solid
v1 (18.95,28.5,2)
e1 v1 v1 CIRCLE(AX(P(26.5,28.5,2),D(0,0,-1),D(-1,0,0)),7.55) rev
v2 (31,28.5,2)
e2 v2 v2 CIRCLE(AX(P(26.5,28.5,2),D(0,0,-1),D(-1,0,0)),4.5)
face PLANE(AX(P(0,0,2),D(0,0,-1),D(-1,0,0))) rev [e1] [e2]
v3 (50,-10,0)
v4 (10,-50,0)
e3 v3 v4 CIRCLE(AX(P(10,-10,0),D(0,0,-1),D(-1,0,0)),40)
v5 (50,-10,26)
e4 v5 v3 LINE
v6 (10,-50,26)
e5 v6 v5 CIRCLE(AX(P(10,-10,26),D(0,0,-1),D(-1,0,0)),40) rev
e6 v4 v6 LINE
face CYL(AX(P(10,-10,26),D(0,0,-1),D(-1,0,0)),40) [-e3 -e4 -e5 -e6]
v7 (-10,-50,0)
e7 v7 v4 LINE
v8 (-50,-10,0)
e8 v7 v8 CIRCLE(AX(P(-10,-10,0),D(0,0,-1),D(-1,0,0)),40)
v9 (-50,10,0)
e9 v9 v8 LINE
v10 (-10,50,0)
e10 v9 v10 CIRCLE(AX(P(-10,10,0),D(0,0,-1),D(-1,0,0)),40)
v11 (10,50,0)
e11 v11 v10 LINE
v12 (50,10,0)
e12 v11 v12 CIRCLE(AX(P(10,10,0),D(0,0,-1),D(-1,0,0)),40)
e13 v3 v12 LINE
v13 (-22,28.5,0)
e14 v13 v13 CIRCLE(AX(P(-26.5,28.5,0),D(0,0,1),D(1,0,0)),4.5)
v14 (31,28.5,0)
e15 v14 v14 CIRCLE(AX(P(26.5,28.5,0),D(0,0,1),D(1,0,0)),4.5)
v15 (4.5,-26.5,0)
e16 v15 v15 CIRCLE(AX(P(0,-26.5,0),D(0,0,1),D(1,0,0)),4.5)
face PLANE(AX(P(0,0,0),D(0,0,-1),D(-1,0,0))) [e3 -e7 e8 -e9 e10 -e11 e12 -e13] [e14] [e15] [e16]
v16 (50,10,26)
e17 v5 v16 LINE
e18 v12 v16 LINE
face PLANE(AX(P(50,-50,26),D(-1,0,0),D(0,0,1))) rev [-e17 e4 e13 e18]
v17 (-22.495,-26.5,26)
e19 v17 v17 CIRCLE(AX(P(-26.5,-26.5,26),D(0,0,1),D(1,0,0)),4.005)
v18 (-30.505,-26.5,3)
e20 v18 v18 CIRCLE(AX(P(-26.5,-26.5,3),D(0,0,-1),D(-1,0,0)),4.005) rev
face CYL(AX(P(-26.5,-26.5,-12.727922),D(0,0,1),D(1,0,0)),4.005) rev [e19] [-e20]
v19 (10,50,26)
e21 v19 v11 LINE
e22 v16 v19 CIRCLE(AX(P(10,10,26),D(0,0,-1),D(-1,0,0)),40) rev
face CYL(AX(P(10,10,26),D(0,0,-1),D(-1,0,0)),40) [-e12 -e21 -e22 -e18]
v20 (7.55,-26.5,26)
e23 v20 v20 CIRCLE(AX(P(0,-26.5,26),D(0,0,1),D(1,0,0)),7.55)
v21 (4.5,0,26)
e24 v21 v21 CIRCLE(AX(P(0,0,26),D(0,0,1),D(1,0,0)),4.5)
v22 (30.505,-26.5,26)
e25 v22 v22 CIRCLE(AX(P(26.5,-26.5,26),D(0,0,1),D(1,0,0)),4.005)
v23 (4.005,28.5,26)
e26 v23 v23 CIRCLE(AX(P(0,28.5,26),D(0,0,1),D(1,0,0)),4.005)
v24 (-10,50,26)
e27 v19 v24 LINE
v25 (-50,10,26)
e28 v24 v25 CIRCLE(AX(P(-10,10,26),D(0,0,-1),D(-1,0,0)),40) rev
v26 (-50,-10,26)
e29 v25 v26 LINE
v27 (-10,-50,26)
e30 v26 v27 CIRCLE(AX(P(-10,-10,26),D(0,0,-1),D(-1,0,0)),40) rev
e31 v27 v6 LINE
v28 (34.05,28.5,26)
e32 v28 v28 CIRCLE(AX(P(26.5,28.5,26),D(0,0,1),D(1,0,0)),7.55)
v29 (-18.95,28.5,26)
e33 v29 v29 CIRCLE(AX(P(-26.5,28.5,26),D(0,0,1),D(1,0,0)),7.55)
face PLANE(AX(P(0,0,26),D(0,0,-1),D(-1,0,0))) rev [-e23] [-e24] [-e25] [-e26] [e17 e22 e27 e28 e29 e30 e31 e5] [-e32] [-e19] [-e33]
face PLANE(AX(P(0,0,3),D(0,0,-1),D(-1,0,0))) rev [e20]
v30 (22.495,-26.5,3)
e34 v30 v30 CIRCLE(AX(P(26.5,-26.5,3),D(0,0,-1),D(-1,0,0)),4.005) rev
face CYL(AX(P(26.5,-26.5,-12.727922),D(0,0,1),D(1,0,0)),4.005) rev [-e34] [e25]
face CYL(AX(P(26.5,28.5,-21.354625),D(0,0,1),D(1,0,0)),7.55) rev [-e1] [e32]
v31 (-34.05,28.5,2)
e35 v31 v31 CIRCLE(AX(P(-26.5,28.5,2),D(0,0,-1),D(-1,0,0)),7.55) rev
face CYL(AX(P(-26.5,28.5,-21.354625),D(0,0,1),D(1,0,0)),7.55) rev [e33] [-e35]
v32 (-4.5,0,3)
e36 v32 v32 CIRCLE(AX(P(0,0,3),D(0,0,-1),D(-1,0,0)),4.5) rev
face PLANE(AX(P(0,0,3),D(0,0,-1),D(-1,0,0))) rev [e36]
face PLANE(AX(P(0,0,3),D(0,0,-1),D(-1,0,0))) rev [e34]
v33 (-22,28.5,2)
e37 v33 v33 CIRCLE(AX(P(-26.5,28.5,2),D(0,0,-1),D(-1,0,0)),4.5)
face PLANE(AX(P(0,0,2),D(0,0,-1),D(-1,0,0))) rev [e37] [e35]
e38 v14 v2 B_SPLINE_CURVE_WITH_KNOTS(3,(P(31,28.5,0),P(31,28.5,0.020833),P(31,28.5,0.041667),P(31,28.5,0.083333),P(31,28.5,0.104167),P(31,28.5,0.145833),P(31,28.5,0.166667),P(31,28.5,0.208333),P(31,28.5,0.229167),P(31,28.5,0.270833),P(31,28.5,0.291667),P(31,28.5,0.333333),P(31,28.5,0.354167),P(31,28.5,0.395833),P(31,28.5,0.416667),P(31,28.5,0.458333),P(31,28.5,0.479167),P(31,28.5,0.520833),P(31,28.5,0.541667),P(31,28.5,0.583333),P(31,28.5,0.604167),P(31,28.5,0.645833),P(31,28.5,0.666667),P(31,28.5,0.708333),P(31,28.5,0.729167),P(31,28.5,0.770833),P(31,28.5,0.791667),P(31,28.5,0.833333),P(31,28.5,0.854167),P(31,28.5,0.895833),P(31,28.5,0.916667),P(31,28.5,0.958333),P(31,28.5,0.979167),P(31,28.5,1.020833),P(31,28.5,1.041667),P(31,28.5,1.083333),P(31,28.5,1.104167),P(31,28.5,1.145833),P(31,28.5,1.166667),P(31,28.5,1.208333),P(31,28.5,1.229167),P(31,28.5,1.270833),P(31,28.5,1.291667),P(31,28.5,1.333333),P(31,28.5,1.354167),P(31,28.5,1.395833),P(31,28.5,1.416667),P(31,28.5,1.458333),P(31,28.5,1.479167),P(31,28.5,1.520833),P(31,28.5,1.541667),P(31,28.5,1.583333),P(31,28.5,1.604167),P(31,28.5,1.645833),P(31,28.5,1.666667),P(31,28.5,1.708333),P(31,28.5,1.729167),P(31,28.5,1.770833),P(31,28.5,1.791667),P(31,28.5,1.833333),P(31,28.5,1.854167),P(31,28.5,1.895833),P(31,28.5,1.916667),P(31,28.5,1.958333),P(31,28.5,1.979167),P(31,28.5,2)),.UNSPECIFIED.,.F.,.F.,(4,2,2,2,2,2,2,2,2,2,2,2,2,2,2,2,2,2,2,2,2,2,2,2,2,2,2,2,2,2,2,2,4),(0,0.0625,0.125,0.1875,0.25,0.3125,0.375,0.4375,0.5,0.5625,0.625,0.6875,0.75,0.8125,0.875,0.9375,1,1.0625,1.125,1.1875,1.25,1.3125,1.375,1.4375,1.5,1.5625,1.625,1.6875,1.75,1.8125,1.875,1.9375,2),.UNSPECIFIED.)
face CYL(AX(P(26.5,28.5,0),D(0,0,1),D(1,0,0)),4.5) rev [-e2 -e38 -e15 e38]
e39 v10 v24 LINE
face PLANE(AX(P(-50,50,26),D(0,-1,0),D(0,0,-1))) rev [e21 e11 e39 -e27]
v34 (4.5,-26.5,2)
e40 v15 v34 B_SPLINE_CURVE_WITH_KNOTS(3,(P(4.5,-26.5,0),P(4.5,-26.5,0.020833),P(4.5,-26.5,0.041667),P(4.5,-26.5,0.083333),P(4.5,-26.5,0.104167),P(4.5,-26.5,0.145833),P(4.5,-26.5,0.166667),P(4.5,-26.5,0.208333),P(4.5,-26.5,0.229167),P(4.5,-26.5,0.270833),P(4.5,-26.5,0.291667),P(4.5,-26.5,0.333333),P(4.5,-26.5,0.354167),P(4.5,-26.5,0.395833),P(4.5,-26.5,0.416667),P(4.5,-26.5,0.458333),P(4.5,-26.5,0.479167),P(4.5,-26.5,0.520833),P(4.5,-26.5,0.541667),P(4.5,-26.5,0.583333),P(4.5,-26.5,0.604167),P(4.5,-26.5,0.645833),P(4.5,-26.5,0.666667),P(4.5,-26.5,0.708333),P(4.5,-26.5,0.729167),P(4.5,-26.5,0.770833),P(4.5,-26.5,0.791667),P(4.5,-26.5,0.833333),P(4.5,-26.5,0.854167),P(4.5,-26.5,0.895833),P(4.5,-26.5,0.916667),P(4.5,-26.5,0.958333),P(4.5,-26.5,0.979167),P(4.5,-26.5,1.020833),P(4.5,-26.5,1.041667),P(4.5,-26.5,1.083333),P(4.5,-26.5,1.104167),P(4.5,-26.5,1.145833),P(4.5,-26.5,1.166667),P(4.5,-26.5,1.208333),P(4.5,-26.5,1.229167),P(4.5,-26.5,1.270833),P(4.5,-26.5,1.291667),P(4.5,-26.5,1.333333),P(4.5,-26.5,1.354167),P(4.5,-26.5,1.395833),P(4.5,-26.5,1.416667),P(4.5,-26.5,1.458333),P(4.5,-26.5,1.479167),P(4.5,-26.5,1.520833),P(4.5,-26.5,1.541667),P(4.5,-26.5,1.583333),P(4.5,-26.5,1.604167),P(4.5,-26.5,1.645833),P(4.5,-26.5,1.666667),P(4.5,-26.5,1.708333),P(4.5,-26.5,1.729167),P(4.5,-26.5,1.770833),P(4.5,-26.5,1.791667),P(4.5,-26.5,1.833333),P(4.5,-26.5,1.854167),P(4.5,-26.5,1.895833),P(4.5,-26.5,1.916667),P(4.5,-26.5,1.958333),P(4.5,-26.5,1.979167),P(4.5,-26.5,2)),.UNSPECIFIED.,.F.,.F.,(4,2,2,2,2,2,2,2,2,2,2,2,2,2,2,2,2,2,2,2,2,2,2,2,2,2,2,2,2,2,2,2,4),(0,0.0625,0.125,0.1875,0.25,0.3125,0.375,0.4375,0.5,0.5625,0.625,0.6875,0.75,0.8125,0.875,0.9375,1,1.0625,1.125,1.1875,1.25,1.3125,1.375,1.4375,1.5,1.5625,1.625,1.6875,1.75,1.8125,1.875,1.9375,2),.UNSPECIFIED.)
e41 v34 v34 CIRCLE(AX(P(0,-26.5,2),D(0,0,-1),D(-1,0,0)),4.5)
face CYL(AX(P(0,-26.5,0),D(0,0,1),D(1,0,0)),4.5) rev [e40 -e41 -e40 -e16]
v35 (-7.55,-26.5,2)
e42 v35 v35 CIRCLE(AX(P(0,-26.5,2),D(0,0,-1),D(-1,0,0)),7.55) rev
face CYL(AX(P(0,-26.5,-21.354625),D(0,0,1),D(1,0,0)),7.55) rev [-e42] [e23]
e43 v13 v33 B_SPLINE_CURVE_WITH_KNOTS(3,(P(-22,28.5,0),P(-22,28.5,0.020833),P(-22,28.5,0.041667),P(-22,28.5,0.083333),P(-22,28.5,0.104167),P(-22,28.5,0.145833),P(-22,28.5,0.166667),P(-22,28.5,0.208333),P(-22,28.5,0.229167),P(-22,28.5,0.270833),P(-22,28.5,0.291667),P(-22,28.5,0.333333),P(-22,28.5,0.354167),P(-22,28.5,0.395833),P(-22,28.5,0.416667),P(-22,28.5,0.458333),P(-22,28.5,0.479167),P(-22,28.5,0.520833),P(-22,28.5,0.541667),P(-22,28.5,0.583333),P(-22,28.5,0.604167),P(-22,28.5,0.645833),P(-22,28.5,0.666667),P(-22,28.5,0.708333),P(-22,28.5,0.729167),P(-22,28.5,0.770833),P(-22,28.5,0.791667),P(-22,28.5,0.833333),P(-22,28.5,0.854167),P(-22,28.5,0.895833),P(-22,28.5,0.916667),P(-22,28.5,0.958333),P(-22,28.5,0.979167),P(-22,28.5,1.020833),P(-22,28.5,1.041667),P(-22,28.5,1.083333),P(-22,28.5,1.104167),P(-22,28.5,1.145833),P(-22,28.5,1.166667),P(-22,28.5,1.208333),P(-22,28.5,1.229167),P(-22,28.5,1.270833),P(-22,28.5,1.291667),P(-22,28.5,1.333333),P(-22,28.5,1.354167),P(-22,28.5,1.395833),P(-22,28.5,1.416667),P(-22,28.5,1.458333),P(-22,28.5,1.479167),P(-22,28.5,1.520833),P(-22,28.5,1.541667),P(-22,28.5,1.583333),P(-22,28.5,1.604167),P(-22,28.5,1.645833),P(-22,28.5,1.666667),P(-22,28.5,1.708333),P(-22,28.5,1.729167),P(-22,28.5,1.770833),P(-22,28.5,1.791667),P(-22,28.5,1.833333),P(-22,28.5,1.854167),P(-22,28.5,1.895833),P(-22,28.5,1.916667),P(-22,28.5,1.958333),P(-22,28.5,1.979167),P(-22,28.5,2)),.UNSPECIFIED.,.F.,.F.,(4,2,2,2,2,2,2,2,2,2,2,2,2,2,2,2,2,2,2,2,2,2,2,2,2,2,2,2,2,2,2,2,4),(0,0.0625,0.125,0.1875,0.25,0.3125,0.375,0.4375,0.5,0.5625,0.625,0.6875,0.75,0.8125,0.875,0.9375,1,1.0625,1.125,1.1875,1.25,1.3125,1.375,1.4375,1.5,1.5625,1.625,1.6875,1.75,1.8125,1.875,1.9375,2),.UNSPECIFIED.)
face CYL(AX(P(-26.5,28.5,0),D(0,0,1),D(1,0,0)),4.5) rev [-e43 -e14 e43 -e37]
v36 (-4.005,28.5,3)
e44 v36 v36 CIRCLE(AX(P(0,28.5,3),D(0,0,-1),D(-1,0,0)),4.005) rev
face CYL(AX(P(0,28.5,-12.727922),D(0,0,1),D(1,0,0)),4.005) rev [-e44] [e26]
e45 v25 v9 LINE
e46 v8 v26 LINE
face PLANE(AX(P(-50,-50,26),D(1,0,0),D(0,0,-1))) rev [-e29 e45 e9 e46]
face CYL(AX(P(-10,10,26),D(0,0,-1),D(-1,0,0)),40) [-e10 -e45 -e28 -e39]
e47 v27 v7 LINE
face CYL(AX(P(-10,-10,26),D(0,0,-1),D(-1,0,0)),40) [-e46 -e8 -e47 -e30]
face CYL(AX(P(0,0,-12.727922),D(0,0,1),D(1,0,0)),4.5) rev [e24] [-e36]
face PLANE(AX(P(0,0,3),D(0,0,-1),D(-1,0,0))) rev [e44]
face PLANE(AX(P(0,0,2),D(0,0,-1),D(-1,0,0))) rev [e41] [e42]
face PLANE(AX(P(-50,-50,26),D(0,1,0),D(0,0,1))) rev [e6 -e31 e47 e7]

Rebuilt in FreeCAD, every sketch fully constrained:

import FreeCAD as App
import Part
import Sketcher

V = App.Vector


def edges_at(feature, points):
    """Names of the edges that pass closest to the given points."""
    edges = feature.Shape.Edges
    near = lambda p: min(range(len(edges)), key=lambda i: edges[i].distToShape(Part.Vertex(*p))[0])
    return sorted({f"Edge{near(p) + 1}" for p in points})


def add_polygon(sketch, points):
    """Adds a closed chain of lines whose ends are joined by coincident constraints."""
    first, n = sketch.GeometryCount, len(points)
    for a, b in zip(points, points[1:] + points[:1]):
        sketch.addGeometry(Part.LineSegment(App.Vector(*a, 0), App.Vector(*b, 0)), False)
    for i in range(n):
        sketch.addConstraint(Sketcher.Constraint("Coincident", first + i, 2, first + (i + 1) % n, 1))

doc = App.newDocument("Part")
params = doc.addObject("Spreadsheet::Sheet", "Params")
for row, (alias, value) in enumerate([
    ("sketch1_width", "100 mm"),
    ("pad1_length", "26 mm"),
    ("sketch2_diameter", "9 mm"),
    ("sketch2_diameter2", "8.01 mm"),
    ("pocket1_length", "23 mm"),
    ("sketch3_diameter", "15.1 mm"),
    ("pocket2_length", "24 mm"),
    ("sketch4_diameter", "9 mm"),
    ("fillet_radius", "40 mm"),
], start=1):
    params.set(f"A{row}", alias)
    params.set(f"B{row}", "=" + value)
    params.setAlias(f"B{row}", alias)

body = doc.addObject("PartDesign::Body", "Body")

sketch1 = body.newObject("Sketcher::SketchObject", "Sketch")
sketch1.AttachmentSupport = (doc.getObject("XY_Plane"), [""])
sketch1.MapMode = "FlatFace"
add_polygon(sketch1, [(-50, 50), (-50, -50), (50, -50), (50, 50)])
sketch1.addConstraint(Sketcher.Constraint("Vertical", 0))
sketch1.addConstraint(Sketcher.Constraint("Horizontal", 1))
sketch1.addConstraint(Sketcher.Constraint("Vertical", 2))
sketch1.addConstraint(Sketcher.Constraint("Horizontal", 3))
sketch1.addConstraint(Sketcher.Constraint("Symmetric", 0, 2, 2, 2, -1, 1))
sketch1.addConstraint(Sketcher.Constraint("Equal", 3, 0))
sketch1.addConstraint(Sketcher.Constraint("DistanceX", 1, 1, 1, 2, 100.0))
sketch1.setExpression("Constraints[10]", "Params.sketch1_width")
pad1 = body.newObject("PartDesign::Pad", "Pad")
pad1.Profile = sketch1
pad1.setExpression("Length", "Params.pad1_length")

sketch2 = body.newObject("Sketcher::SketchObject", "Sketch001")
sketch2.AttachmentSupport = (doc.getObject("XY_Plane"), [""])
sketch2.MapMode = "FlatFace"
sketch2.AttachmentOffset = App.Placement(V(0, 0, 26), App.Rotation())
sketch2.addGeometry(Part.Circle(V(0, 28.5, 0), V(0, 0, 1), 4), False)
sketch2.addGeometry(Part.Circle(V(-26.5, -26.5, 0), V(0, 0, 1), 4), False)
sketch2.addGeometry(Part.Circle(V(26.5, -26.5, 0), V(0, 0, 1), 4), False)
sketch2.addGeometry(Part.Circle(V(0, 0, 0), V(0, 0, 1), 4.5), False)
sketch2.addConstraint(Sketcher.Constraint("Coincident", 3, 3, -1, 1))
sketch2.addConstraint(Sketcher.Constraint("Equal", 0, 1))
sketch2.addConstraint(Sketcher.Constraint("Equal", 1, 2))
sketch2.addConstraint(Sketcher.Constraint("Symmetric", 1, 3, 2, 3, -2))
sketch2.addConstraint(Sketcher.Constraint("PointOnObject", 0, 3, -2))
sketch2.addConstraint(Sketcher.Constraint("Diameter", 3, 9.0))
sketch2.addConstraint(Sketcher.Constraint("Diameter", 0, 8.01))
sketch2.addConstraint(Sketcher.Constraint("DistanceY", 1, 3, 0, 3, 55.0))
sketch2.addConstraint(Sketcher.Constraint("DistanceX", 1, 3, 2, 3, 53.0))
sketch2.addConstraint(Sketcher.Constraint("DistanceY", -1, 1, 0, 3, 28.5))
sketch2.setExpression("Constraints[5]", "Params.sketch2_diameter")
sketch2.setExpression("Constraints[6]", "Params.sketch2_diameter2")
pocket1 = body.newObject("PartDesign::Pocket", "Pocket")
pocket1.Profile = sketch2
pocket1.setExpression("Length", "Params.pocket1_length")

sketch3 = body.newObject("Sketcher::SketchObject", "Sketch002")
sketch3.AttachmentSupport = (doc.getObject("XY_Plane"), [""])
sketch3.MapMode = "FlatFace"
sketch3.AttachmentOffset = App.Placement(V(0, 0, 26), App.Rotation())
sketch3.addGeometry(Part.Circle(V(-26, 28, 0), V(0, 0, 1), 8), False)
sketch3.addGeometry(Part.Circle(V(26, 28, 0), V(0, 0, 1), 8), False)
sketch3.addGeometry(Part.Circle(V(0, -27, 0), V(0, 0, 1), 8), False)
sketch3.addConstraint(Sketcher.Constraint("Equal", 0, 1))
sketch3.addConstraint(Sketcher.Constraint("Equal", 1, 2))
sketch3.addConstraint(Sketcher.Constraint("Symmetric", 0, 3, 1, 3, -2))
sketch3.addConstraint(Sketcher.Constraint("PointOnObject", 2, 3, -2))
sketch3.addConstraint(Sketcher.Constraint("Diameter", 0, 15.1))
sketch3.addConstraint(Sketcher.Constraint("DistanceX", 0, 3, 1, 3, 53.0))
sketch3.addConstraint(Sketcher.Constraint("DistanceY", 2, 3, 0, 3, 55.0))
sketch3.addConstraint(Sketcher.Constraint("DistanceY", -1, 1, 0, 3, 28.5))
sketch3.setExpression("Constraints[4]", "Params.sketch3_diameter")
pocket2 = body.newObject("PartDesign::Pocket", "Pocket001")
pocket2.Profile = sketch3
pocket2.setExpression("Length", "Params.pocket2_length")

sketch4 = body.newObject("Sketcher::SketchObject", "Sketch003")
sketch4.AttachmentSupport = (doc.getObject("XY_Plane"), [""])
sketch4.MapMode = "FlatFace"
sketch4.AttachmentOffset = App.Placement(V(0, 0, 26), App.Rotation())
sketch4.addGeometry(Part.Circle(V(-26.5, 28.5, 0), V(0, 0, 1), 4.5), False)
sketch4.addGeometry(Part.Circle(V(26.5, 28.5, 0), V(0, 0, 1), 4.5), False)
sketch4.addGeometry(Part.Circle(V(0, -26.5, 0), V(0, 0, 1), 4.5), False)
sketch4.addConstraint(Sketcher.Constraint("Equal", 0, 1))
sketch4.addConstraint(Sketcher.Constraint("Equal", 1, 2))
sketch4.addConstraint(Sketcher.Constraint("Symmetric", 0, 3, 1, 3, -2))
sketch4.addConstraint(Sketcher.Constraint("PointOnObject", 2, 3, -2))
sketch4.addConstraint(Sketcher.Constraint("Diameter", 0, 9.0))
sketch4.addConstraint(Sketcher.Constraint("DistanceX", 0, 3, 1, 3, 53.0))
sketch4.addConstraint(Sketcher.Constraint("DistanceY", 2, 3, 0, 3, 55.0))
sketch4.addConstraint(Sketcher.Constraint("DistanceY", -1, 1, 0, 3, 28.5))
sketch4.setExpression("Constraints[4]", "Params.sketch4_diameter")
pocket3 = body.newObject("PartDesign::Pocket", "Pocket002")
pocket3.Profile = sketch4
pocket3.Type = "ThroughAll"
pocket3.Midplane = True
doc.recompute()

fillet = body.newObject("PartDesign::Fillet", "Fillet")
fillet.Base = (pocket3, edges_at(pocket3, [
    (50, -50, 13),
    (-50, -50, 13),
    (-50, 50, 13),
    (50, 50, 13),
]))
fillet.setExpression("Radius", "Params.fillet_radius")

doc.recompute()
